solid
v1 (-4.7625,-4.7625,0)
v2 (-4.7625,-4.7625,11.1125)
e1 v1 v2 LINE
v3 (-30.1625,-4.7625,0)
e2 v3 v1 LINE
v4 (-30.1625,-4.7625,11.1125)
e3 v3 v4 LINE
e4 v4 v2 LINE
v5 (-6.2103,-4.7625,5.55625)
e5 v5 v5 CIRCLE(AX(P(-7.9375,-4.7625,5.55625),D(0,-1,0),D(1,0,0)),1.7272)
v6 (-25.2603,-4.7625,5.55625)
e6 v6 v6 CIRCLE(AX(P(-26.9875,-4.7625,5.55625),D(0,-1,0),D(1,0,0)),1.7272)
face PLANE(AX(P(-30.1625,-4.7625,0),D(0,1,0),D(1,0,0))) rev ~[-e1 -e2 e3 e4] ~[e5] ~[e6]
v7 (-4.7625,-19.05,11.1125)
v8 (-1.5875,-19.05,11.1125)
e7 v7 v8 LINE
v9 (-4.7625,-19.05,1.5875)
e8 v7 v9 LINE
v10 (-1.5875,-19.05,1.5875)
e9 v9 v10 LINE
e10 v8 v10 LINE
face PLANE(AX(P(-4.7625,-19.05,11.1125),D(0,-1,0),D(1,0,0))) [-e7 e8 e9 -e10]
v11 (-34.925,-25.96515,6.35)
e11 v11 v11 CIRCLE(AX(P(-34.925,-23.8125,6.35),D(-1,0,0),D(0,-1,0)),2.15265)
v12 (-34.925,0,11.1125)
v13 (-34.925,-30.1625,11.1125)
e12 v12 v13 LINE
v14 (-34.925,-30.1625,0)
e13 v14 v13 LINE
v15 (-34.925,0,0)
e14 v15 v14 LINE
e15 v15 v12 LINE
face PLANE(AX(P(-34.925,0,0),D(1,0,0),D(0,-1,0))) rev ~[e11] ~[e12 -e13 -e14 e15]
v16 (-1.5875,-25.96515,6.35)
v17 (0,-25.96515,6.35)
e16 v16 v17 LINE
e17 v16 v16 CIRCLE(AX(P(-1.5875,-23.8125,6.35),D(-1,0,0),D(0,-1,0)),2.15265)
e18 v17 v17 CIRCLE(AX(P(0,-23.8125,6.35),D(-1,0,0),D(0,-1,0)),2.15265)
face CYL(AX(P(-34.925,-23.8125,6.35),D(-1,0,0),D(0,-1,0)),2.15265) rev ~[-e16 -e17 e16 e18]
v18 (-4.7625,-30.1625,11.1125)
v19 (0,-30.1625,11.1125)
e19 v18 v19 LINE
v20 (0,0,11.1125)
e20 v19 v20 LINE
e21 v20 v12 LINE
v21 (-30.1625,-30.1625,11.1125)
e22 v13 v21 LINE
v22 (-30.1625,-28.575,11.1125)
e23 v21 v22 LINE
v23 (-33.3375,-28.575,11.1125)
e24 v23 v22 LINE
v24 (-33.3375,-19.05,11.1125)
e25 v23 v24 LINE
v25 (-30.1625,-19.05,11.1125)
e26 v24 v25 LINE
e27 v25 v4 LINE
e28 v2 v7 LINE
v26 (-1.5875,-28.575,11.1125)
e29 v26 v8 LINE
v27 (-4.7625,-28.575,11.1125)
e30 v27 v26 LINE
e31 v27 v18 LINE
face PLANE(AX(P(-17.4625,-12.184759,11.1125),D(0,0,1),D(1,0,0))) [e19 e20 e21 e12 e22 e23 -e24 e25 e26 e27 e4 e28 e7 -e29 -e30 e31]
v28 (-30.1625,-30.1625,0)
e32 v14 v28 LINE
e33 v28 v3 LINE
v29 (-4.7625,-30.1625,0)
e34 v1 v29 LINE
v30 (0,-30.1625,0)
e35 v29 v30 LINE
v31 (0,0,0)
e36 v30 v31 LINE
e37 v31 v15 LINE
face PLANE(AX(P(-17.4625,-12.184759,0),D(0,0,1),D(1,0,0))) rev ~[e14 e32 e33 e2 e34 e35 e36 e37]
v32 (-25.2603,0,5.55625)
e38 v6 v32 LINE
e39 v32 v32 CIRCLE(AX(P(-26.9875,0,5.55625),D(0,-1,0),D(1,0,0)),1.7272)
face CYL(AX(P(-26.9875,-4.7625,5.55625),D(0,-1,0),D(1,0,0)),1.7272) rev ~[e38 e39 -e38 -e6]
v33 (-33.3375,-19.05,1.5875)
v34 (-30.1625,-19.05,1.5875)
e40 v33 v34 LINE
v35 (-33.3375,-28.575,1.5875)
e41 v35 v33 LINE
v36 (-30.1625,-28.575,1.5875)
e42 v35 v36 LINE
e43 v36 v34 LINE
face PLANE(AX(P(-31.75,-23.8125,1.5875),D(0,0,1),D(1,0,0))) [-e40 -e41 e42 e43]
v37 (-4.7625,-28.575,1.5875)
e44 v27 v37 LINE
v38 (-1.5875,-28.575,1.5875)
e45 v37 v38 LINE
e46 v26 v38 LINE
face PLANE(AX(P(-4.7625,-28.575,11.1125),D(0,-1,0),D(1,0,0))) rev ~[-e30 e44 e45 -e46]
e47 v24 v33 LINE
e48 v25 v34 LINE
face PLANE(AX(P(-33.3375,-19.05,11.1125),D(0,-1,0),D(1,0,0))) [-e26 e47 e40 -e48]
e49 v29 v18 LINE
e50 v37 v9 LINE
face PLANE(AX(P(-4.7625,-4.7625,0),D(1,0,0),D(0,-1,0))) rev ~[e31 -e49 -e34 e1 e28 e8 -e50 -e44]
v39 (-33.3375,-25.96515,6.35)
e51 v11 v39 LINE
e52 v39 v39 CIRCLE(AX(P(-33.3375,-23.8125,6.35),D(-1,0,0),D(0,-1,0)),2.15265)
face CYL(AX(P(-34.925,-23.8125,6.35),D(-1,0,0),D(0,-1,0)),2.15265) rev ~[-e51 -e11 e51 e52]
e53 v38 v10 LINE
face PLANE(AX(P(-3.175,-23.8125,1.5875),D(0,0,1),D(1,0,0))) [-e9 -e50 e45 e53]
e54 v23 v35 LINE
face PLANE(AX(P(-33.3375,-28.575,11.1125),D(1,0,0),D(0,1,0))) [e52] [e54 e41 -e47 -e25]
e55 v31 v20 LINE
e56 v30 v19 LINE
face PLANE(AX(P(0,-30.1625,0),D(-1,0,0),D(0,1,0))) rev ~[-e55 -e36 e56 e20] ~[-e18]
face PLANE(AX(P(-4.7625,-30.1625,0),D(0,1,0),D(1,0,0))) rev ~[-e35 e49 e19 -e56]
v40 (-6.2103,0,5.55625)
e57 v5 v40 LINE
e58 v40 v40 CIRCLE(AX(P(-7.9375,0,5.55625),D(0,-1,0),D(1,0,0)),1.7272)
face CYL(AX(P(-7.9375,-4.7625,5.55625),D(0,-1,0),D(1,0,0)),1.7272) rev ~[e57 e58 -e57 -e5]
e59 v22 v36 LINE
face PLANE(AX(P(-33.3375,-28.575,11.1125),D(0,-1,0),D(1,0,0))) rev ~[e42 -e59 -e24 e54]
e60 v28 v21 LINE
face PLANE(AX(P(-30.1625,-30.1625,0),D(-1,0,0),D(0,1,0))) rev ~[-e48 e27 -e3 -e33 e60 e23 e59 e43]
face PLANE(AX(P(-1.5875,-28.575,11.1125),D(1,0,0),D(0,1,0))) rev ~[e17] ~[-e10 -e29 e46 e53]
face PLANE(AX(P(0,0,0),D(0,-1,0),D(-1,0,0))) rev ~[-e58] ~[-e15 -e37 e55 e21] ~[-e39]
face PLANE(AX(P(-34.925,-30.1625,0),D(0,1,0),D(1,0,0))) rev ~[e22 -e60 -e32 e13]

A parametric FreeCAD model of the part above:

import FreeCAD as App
import Part
import Sketcher

V = App.Vector
Q = App.Units.Quantity


def add_polygon(sketch, points):
    """Adds a closed chain of lines whose ends are joined by coincident constraints."""
    first, n = sketch.GeometryCount, len(points)
    for a, b in zip(points, points[1:] + points[:1]):
        sketch.addGeometry(Part.LineSegment(App.Vector(*a, 0), App.Vector(*b, 0)), False)
    for i in range(n):
        sketch.addConstraint(Sketcher.Constraint("Coincident", first + i, 2, first + (i + 1) % n, 1))

doc = App.newDocument("Part")
body = doc.addObject("PartDesign::Body", "Body")

# Sketch on XY plane
sketch1 = body.newObject("Sketcher::SketchObject", "Sketch")
sketch1.AttachmentSupport = (doc.getObject("XY_Plane"), [""])
sketch1.MapMode = "FlatFace"
add_polygon(sketch1, [(0, 0), (-34.9, 0), (-34.9, -30.2), (-30.2, -30.2), (-30.2, -4.8), (-4.8, -4.8), (-4.8, -30.2), (0, -30.2)])  # lines 0-7
sketch1.addConstraint([
    Sketcher.Constraint("Horizontal", 0),
    Sketcher.Constraint("Vertical", 1),
    Sketcher.Constraint("Horizontal", 2),
    Sketcher.Constraint("Vertical", 3),
    Sketcher.Constraint("Horizontal", 4),
    Sketcher.Constraint("Vertical", 5),
    Sketcher.Constraint("Horizontal", 6),
    Sketcher.Constraint("Vertical", 7),
    Sketcher.Constraint("Coincident", 7, 2, -1, 1),
    Sketcher.Constraint("Horizontal", 2, 2, 5, 2),
    Sketcher.Constraint("Equal", 2, 6),
    Sketcher.Constraint("Equal", 4, 3),
    Sketcher.Constraint("DistanceX", 4, 1, 4, 2, Q("1 in")),
    Sketcher.Constraint("DistanceX", 0, 2, 0, 1, Q("1.375 in")),
    Sketcher.Constraint("DistanceY", 1, 2, 1, 1, Q("1.1875 in")),
])
pad1 = body.newObject("PartDesign::Pad", "Pad")
pad1.Profile = sketch1
pad1.Length = Q("0.4375 in")

# Sketch on XY plane
sketch2 = body.newObject("Sketcher::SketchObject", "Sketch001")
sketch2.AttachmentSupport = (doc.getObject("XY_Plane"), [""])
sketch2.MapMode = "FlatFace"
sketch2.AttachmentOffset = App.Placement(V(0, 0, 0.4375 * 25.4), App.Rotation())
add_polygon(sketch2, [(-33.3, -19.1), (-33.3, -28.6), (-30.2, -28.6), (-30.2, -19.1)])  # lines 0-3
add_polygon(sketch2, [(-4.8, -19.1), (-4.8, -28.6), (-1.6, -28.6), (-1.6, -19.1)])  # lines 4-7
sketch2.addConstraint([
    Sketcher.Constraint("Vertical", 0),
    Sketcher.Constraint("Horizontal", 1),
    Sketcher.Constraint("Vertical", 2),
    Sketcher.Constraint("Horizontal", 3),
    Sketcher.Constraint("Vertical", 4),
    Sketcher.Constraint("Horizontal", 5),
    Sketcher.Constraint("Vertical", 6),
    Sketcher.Constraint("Horizontal", 7),
    Sketcher.Constraint("Horizontal", 1, 2, 4, 2),
    Sketcher.Constraint("Horizontal", 3, 2, 6, 2),
    Sketcher.Constraint("Equal", 3, 5),
    Sketcher.Constraint("DistanceX", 1, 2, 4, 2, Q("1 in")),
    Sketcher.Constraint("DistanceX", 1, 1, 1, 2, Q("0.125 in")),
    Sketcher.Constraint("DistanceY", 0, 2, 0, 1, Q("0.375 in")),
    Sketcher.Constraint("DistanceY", 2, 2, -1, 1, Q("0.75 in")),
    Sketcher.Constraint("DistanceX", 0, 2, -1, 1, Q("1.3125 in")),
])
pocket1 = body.newObject("PartDesign::Pocket", "Pocket")
pocket1.Profile = sketch2
pocket1.Length = Q("0.375 in")

# Sketch on YZ plane
sketch3 = body.newObject("Sketcher::SketchObject", "Sketch002")
sketch3.AttachmentSupport = (doc.getObject("YZ_Plane"), [""])
sketch3.MapMode = "FlatFace"
sketch3.AttachmentOffset = App.Placement(V(0, 0, -1.375 * 25.4), App.Rotation())
sketch3.addGeometry(Part.Circle(V(-23.8, 6.3, 0), V(0, 0, 1), 2.2), False)
sketch3.addConstraint([
    Sketcher.Constraint("Diameter", 0, Q("0.1695 in")),
    Sketcher.Constraint("DistanceY", -1, 1, 0, 3, Q("0.25 in")),
    Sketcher.Constraint("DistanceX", 0, 3, -1, 1, Q("0.9375 in")),
])
pocket2 = body.newObject("PartDesign::Pocket", "Pocket001")
pocket2.Profile = sketch3
pocket2.Type = "ThroughAll"
pocket2.Reversed = True

# Sketch on XZ plane
sketch4 = body.newObject("Sketcher::SketchObject", "Sketch003")
sketch4.AttachmentSupport = (doc.getObject("XZ_Plane"), [""])
sketch4.MapMode = "FlatFace"
sketch4.AttachmentOffset = App.Placement(V(0, 0, 0.1875 * 25.4), App.Rotation())
sketch4.addGeometry([
    Part.Circle(V(-7.9, 5.6, 0), V(0, 0, 1), 1.7),
    Part.Circle(V(-27, 5.6, 0), V(0, 0, 1), 1.7),
], False)
sketch4.addConstraint([
    Sketcher.Constraint("Equal", 0, 1),
    Sketcher.Constraint("Horizontal", 0, 3, 1, 3),
    Sketcher.Constraint("Diameter", 0, Q("0.136 in")),
    Sketcher.Constraint("DistanceX", 1, 3, 0, 3, Q("0.75 in")),
    Sketcher.Constraint("DistanceX", 0, 3, -1, 1, Q("0.3125 in")),
    Sketcher.Constraint("DistanceY", -1, 1, 0, 3, Q("0.21875 in")),
])
pocket3 = body.newObject("PartDesign::Pocket", "Pocket002")
pocket3.Profile = sketch4
pocket3.Type = "ThroughAll"

doc.recompute()
